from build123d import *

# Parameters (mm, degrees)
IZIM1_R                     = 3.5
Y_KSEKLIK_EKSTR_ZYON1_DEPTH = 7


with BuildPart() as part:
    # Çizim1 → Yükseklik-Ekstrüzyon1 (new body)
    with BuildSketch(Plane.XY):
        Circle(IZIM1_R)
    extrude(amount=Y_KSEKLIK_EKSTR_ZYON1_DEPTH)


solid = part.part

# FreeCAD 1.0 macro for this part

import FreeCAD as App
import Part
import Sketcher
Q = App.Units.Quantity

doc = App.newDocument("Part")
body = doc.addObject("PartDesign::Body", "Body")

# Sketch on XY plane
sketch1 = body.newObject("Sketcher::SketchObject", "Sketch")
sketch1.AttachmentSupport = (doc.getObject("XY_Plane"), [""])
sketch1.MapMode = "FlatFace"
sketch1.addGeometry(Part.Circle(App.Vector(0, 0, 0), App.Vector(0, 0, 1), 3.5), False)
sketch1.addConstraint([
    Sketcher.Constraint("Coincident", 0, 3, -1, 1),
    Sketcher.Constraint("Diameter", 0, Q("7 mm")),
])
pad1 = body.newObject("PartDesign::Pad", "Pad")
pad1.Profile = sketch1
pad1.Length = 7

doc.recompute()
